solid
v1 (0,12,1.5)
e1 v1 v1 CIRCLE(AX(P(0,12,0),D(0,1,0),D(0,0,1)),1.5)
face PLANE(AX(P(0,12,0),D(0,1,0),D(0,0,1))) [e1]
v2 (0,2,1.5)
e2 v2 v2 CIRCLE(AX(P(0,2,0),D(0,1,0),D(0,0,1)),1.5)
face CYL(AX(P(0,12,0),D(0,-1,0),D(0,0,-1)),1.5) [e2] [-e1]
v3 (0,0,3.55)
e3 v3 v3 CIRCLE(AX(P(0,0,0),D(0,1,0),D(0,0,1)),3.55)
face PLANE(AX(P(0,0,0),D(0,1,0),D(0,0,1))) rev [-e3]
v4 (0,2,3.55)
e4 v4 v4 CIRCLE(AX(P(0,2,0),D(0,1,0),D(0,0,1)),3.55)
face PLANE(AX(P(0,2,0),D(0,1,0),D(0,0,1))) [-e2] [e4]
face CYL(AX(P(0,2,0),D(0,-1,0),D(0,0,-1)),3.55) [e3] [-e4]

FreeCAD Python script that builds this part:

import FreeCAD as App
import Part
import Sketcher

V = App.Vector
Q = App.Units.Quantity

doc = App.newDocument("Part")
body = doc.addObject("PartDesign::Body", "Body")

sketch1 = body.newObject("Sketcher::SketchObject", "Sketch")
sketch1.AttachmentSupport = (doc.getObject("XZ_Plane"), [""])
sketch1.MapMode = "FlatFace"
sketch1.addGeometry(Part.Circle(V(0, 0, 0), V(0, 0, 1), 3.5), False)
sketch1.addConstraint([
    Sketcher.Constraint("Coincident", 0, 3, -1, 1),
    Sketcher.Constraint("Diameter", 0, Q("7.1 mm")),
])
pad1 = body.newObject("PartDesign::Pad", "Pad")
pad1.Profile = sketch1
pad1.Length = 2
pad1.Reversed = True

sketch2 = body.newObject("Sketcher::SketchObject", "Sketch001")
sketch2.AttachmentSupport = (doc.getObject("XZ_Plane"), [""])
sketch2.MapMode = "FlatFace"
sketch2.AttachmentOffset = App.Placement(V(0, 0, -2), App.Rotation())
sketch2.addGeometry(Part.Circle(V(0, 0, 0), V(0, 0, 1), 1.5), False)
sketch2.addConstraint([
    Sketcher.Constraint("Coincident", 0, 3, -1, 1),
    Sketcher.Constraint("Diameter", 0, Q("3 mm")),
])
pad2 = body.newObject("PartDesign::Pad", "Pad001")
pad2.Profile = sketch2
pad2.Length = 10
pad2.Reversed = True

doc.recompute()
